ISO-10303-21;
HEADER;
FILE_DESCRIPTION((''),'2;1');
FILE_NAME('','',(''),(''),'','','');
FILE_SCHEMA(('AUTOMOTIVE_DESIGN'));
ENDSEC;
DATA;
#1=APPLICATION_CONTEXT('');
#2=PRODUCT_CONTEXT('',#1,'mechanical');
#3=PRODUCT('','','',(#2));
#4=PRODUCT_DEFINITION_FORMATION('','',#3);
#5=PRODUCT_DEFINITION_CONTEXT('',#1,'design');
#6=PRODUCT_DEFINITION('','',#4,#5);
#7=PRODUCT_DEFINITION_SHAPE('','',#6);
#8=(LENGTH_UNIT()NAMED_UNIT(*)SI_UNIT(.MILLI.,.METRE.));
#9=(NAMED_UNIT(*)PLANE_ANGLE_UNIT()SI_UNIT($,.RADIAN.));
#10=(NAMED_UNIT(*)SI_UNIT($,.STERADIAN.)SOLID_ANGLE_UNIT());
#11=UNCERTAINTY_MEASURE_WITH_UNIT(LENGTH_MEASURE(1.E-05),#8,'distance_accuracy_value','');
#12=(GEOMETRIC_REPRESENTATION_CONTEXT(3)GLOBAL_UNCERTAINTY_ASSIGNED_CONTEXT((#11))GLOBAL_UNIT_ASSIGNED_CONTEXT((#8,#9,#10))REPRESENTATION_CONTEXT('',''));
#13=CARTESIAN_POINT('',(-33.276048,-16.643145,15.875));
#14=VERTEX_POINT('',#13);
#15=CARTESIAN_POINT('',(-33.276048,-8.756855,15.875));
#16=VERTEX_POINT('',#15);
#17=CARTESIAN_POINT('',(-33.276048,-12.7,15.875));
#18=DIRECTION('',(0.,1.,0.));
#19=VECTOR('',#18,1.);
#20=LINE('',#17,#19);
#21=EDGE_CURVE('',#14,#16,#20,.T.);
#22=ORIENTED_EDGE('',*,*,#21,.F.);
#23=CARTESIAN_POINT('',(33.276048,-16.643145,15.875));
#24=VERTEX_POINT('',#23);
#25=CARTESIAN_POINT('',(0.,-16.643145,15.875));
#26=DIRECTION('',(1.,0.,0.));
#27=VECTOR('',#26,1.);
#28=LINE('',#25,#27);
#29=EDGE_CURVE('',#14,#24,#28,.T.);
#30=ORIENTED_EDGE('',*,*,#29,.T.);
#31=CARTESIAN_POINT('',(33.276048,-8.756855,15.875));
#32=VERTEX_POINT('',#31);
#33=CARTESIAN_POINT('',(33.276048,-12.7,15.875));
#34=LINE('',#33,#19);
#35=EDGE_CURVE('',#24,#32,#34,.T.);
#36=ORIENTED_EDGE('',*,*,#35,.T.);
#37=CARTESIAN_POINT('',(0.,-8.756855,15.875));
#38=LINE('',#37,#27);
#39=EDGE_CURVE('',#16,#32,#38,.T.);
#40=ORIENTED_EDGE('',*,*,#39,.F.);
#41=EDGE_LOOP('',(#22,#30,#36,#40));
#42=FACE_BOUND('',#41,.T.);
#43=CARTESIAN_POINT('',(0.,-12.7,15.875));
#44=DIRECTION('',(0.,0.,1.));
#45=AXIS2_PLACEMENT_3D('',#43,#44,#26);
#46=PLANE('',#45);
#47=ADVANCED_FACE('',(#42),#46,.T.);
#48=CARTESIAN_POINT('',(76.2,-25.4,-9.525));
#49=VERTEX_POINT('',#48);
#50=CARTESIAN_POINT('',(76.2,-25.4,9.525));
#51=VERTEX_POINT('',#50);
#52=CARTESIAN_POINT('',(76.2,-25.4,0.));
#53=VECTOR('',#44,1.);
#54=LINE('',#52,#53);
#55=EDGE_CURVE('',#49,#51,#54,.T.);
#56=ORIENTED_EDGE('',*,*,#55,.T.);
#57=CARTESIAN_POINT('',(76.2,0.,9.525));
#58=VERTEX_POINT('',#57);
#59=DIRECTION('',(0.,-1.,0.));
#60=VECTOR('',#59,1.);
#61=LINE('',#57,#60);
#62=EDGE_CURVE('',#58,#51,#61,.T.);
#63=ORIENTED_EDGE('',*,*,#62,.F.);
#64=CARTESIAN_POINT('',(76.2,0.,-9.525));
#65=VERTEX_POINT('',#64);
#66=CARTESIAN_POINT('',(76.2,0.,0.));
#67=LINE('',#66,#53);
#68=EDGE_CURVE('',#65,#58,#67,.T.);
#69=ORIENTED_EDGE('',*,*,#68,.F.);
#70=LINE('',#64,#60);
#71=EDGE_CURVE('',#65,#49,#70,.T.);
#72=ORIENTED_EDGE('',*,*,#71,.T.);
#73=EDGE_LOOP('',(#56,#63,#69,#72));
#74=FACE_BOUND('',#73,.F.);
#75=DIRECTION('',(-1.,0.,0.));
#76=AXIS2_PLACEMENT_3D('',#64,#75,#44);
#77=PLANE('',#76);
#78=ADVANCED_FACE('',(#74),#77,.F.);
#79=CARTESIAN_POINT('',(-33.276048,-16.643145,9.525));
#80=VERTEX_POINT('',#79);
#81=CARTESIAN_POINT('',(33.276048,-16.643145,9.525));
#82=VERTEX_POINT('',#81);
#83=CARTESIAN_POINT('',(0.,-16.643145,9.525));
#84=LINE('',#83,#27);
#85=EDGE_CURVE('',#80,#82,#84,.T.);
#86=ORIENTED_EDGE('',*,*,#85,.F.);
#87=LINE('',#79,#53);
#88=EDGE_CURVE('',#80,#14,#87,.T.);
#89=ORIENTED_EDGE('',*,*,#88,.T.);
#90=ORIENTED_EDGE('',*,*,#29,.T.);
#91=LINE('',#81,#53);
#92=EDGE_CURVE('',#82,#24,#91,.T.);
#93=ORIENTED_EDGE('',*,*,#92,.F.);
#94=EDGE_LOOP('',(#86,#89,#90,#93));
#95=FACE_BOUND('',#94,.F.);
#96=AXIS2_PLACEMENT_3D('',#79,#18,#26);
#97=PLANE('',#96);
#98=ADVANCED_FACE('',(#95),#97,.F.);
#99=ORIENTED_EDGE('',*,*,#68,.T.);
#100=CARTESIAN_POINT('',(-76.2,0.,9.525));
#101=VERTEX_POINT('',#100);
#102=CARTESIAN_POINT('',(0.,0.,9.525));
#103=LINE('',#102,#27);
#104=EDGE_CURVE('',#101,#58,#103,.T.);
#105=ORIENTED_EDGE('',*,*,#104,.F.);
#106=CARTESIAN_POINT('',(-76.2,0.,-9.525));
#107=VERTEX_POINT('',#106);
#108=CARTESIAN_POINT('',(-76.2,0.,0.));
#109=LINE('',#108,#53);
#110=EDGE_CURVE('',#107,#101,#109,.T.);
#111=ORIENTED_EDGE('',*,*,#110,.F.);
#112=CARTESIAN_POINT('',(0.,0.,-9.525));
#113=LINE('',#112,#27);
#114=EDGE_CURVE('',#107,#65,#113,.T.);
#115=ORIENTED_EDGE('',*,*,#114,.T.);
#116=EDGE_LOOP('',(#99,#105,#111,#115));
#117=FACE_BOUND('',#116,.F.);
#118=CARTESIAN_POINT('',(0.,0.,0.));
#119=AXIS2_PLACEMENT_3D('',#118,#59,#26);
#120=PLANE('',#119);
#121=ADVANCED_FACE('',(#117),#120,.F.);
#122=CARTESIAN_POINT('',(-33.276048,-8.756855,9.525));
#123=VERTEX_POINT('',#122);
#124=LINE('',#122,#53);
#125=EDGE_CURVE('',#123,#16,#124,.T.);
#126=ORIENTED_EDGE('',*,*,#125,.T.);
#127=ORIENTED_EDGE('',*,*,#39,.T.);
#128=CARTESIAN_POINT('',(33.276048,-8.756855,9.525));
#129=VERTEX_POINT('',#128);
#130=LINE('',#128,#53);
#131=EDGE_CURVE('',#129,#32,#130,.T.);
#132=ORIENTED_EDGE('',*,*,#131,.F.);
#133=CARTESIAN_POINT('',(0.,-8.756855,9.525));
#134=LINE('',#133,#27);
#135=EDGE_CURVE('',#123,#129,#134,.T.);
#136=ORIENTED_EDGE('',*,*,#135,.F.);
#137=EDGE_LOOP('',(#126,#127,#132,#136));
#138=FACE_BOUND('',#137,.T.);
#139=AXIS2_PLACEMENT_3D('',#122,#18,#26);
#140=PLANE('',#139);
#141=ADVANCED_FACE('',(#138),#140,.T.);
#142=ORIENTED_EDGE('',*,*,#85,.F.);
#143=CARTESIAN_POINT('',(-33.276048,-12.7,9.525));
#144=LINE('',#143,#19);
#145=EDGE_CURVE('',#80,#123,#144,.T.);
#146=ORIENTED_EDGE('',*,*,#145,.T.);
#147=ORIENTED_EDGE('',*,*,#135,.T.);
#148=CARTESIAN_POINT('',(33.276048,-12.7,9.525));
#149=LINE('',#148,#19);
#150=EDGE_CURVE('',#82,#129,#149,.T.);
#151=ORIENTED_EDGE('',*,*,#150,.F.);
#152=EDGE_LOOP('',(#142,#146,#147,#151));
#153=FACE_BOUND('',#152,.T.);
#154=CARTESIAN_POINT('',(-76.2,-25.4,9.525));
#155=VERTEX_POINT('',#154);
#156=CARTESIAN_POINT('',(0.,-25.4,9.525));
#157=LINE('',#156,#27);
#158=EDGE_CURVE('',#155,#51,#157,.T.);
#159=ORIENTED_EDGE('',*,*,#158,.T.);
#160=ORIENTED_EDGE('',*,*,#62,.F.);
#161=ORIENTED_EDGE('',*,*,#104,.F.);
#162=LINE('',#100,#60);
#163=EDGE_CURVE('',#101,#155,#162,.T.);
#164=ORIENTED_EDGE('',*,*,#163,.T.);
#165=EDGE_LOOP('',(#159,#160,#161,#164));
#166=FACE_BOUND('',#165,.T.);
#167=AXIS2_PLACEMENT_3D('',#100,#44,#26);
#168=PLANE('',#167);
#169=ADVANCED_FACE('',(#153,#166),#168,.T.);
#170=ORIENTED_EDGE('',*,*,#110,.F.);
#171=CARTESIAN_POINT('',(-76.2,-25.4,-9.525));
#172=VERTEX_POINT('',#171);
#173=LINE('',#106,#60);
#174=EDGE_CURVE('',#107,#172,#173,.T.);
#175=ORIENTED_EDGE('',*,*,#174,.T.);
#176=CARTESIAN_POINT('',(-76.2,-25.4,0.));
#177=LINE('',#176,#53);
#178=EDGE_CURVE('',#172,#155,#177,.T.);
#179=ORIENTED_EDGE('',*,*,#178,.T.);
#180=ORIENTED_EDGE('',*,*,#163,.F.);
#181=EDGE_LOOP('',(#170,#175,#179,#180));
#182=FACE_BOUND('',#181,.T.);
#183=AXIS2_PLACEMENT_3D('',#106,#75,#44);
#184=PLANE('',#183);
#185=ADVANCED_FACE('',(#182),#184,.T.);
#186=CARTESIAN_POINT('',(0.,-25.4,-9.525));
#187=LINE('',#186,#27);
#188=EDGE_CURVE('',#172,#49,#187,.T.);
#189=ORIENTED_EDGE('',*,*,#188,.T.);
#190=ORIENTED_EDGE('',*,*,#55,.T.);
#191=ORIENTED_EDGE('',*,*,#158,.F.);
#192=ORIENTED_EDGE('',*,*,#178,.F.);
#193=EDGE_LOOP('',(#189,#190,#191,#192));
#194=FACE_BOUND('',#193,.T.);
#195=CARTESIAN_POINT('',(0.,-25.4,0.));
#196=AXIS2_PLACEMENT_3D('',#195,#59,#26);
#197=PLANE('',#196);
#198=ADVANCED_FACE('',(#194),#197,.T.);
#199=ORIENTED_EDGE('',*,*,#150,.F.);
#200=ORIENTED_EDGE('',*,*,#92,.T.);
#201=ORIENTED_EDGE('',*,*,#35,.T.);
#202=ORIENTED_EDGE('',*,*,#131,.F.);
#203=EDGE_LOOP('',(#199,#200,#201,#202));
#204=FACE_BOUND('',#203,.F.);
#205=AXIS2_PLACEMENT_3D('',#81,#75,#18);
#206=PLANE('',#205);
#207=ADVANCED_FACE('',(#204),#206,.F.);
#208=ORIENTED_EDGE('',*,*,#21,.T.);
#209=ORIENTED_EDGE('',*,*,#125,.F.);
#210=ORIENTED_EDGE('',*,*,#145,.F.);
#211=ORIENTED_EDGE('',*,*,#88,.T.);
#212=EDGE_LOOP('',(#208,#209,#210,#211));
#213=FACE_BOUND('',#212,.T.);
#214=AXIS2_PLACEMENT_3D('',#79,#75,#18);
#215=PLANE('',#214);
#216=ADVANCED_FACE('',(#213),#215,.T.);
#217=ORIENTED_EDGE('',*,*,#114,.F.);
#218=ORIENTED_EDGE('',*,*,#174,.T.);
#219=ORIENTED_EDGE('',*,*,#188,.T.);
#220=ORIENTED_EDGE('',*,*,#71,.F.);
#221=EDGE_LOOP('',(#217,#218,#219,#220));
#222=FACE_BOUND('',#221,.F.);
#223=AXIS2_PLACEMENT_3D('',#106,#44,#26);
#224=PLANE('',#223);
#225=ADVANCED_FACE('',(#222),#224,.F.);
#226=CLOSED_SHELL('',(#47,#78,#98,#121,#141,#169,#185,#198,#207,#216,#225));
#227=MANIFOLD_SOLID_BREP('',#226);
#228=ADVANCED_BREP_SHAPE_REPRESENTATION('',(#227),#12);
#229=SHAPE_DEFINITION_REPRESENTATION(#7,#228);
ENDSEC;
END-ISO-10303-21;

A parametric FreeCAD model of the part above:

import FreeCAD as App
import Part
import Sketcher
from FreeCAD import Vector
Q = App.Units.Quantity

doc = App.newDocument("Part")
body = doc.addObject("PartDesign::Body", "Body")

# Sketch on XZ plane
sketch1 = body.newObject("Sketcher::SketchObject", "Sketch")
sketch1.AttachmentSupport = (doc.getObject("XZ_Plane"), [""])
sketch1.MapMode = "FlatFace"
sketch1.addGeometry([
    Part.LineSegment(Vector(-76.2, 9.525, 0), Vector(-76.2, -9.525, 0)),
    Part.LineSegment(Vector(-76.2, -9.525, 0), Vector(76.2, -9.525, 0)),
    Part.LineSegment(Vector(76.2, -9.525, 0), Vector(76.2, 9.525, 0)),
    Part.LineSegment(Vector(76.2, 9.525, 0), Vector(-76.2, 9.525, 0)),
], False)
sketch1.addConstraint([
    Sketcher.Constraint("Coincident", 0, 2, 1, 1),
    Sketcher.Constraint("Coincident", 1, 2, 2, 1),
    Sketcher.Constraint("Coincident", 2, 2, 3, 1),
    Sketcher.Constraint("Coincident", 3, 2, 0, 1),
    Sketcher.Constraint("Vertical", 0),
    Sketcher.Constraint("Horizontal", 1),
    Sketcher.Constraint("Vertical", 2),
    Sketcher.Constraint("Horizontal", 3),
    Sketcher.Constraint("Symmetric", 0, 2, 2, 2, -1, 1),
    Sketcher.Constraint("DistanceX", 1, 1, 1, 2, Q("6 in")),
    Sketcher.Constraint("DistanceY", 0, 2, 0, 1, Q("0.75 in")),
])
pad1 = body.newObject("PartDesign::Pad", "Pad")
pad1.Profile = sketch1
pad1.Length = Q("1 in")

# Sketch on XY plane
sketch2 = body.newObject("Sketcher::SketchObject", "Sketch001")
sketch2.AttachmentSupport = (doc.getObject("XY_Plane"), [""])
sketch2.MapMode = "FlatFace"
sketch2.AttachmentOffset = App.Placement(Vector(0, 0, 0.375 * 25.4), App.Rotation())
sketch2.addGeometry([
    Part.LineSegment(Vector(-33.276048, -8.756855, 0), Vector(-33.276048, -16.643145, 0)),
    Part.LineSegment(Vector(-33.276048, -16.643145, 0), Vector(33.276048, -16.643145, 0)),
    Part.LineSegment(Vector(33.276048, -16.643145, 0), Vector(33.276048, -8.756855, 0)),
    Part.LineSegment(Vector(33.276048, -8.756855, 0), Vector(-33.276048, -8.756855, 0)),
], False)
sketch2.addConstraint([
    Sketcher.Constraint("Coincident", 0, 2, 1, 1),
    Sketcher.Constraint("Coincident", 1, 2, 2, 1),
    Sketcher.Constraint("Coincident", 2, 2, 3, 1),
    Sketcher.Constraint("Coincident", 3, 2, 0, 1),
    Sketcher.Constraint("Vertical", 0),
    Sketcher.Constraint("Horizontal", 1),
    Sketcher.Constraint("Vertical", 2),
    Sketcher.Constraint("Horizontal", 3),
    Sketcher.Constraint("DistanceY", 0, 2, 0, 1, Q("7.88629 mm")),
    Sketcher.Constraint("DistanceX", 1, 1, 1, 2, Q("66.552096 mm")),
    Sketcher.Constraint("DistanceX", 0, 2, -1, 1, Q("33.276048 mm")),
    Sketcher.Constraint("DistanceY", 0, 2, -1, 1, Q("16.643145 mm")),
])
pad2 = body.newObject("PartDesign::Pad", "Pad001")
pad2.Profile = sketch2
pad2.Length = Q("0.25 in")

doc.recompute()
